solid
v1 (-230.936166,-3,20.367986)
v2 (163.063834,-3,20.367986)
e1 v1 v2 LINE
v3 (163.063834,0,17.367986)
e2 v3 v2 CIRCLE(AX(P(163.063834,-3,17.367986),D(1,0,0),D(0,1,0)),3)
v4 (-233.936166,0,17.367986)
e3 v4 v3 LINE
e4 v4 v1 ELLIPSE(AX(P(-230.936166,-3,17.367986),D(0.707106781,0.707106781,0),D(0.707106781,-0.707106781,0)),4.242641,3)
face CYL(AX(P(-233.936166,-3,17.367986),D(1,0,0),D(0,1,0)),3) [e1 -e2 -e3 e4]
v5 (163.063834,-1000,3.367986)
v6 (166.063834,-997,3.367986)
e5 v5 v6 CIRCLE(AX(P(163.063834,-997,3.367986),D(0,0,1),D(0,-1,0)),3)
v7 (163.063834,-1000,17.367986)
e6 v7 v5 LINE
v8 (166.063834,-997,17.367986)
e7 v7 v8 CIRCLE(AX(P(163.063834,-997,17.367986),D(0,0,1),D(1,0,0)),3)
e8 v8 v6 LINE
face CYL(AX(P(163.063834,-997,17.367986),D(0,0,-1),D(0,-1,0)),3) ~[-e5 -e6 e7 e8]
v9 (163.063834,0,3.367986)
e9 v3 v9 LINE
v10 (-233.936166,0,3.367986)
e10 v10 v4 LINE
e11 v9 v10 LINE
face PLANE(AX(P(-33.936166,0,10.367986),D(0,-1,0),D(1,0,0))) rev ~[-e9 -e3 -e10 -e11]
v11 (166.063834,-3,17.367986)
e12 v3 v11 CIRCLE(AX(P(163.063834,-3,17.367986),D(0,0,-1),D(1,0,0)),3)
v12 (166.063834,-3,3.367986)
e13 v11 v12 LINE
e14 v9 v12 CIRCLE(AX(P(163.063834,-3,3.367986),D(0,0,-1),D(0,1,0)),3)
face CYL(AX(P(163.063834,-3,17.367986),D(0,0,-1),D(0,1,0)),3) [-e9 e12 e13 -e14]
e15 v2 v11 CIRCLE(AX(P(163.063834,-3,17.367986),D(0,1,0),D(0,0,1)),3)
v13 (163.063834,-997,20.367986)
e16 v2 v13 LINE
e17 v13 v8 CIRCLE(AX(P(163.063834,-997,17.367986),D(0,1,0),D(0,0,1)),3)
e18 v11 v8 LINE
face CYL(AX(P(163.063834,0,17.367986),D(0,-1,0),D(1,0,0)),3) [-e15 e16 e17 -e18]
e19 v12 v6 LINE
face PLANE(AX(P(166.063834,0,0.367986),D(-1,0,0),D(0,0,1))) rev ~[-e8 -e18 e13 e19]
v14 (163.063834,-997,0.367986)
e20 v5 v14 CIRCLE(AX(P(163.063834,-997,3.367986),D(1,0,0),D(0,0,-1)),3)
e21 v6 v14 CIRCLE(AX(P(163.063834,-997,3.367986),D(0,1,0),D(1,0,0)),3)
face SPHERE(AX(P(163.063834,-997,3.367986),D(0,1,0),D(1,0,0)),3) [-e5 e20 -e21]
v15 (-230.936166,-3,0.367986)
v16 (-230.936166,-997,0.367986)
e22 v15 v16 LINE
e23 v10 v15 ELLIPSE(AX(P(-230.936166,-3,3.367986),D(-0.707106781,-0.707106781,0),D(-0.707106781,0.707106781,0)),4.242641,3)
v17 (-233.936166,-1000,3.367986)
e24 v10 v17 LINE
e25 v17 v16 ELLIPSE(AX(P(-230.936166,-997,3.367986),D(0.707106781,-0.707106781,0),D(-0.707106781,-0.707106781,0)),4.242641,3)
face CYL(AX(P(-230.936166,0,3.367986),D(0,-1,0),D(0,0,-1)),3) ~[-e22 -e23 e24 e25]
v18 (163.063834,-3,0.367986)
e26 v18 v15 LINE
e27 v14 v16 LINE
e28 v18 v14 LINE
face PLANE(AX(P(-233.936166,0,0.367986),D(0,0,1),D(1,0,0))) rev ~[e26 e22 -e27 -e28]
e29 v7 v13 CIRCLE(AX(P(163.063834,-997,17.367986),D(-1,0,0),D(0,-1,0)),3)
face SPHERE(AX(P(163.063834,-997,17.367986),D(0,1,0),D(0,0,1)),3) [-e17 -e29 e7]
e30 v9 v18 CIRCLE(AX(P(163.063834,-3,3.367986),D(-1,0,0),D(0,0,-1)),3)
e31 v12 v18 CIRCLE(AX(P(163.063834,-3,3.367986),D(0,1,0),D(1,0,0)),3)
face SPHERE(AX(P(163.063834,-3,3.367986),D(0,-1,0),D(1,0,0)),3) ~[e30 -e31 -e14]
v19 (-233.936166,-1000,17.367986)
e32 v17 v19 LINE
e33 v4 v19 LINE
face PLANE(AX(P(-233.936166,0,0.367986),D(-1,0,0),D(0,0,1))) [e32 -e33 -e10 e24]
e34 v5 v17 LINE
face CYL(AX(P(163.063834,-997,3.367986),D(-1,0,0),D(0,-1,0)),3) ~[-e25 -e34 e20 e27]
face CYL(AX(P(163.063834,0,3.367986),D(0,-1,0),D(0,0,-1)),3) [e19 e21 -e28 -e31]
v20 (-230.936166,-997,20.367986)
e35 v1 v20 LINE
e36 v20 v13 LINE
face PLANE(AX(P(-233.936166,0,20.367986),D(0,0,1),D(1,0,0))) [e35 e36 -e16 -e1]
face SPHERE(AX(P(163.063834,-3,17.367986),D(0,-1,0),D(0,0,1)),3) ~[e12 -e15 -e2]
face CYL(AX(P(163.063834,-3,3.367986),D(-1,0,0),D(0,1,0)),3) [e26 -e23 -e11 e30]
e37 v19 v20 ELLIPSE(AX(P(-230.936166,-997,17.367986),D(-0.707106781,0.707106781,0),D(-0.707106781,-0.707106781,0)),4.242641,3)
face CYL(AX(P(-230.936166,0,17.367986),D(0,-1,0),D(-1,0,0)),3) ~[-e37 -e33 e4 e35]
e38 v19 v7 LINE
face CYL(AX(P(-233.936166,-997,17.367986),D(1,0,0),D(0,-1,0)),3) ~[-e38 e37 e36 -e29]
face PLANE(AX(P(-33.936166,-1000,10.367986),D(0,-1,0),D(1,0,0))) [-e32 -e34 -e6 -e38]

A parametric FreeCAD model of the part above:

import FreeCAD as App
import Part
import Sketcher
from FreeCAD import Vector
Q = App.Units.Quantity


def edges_at(feature, points):
    """Names of the edges that pass closest to the given points."""
    edges = feature.Shape.Edges
    near = lambda p: min(range(len(edges)), key=lambda i: edges[i].distToShape(Part.Vertex(*p))[0])
    return sorted({f"Edge{near(p) + 1}" for p in points})

doc = App.newDocument("Part")
body = doc.addObject("PartDesign::Body", "Body")

# Sketch on XZ plane
sketch1 = doc.addObject("Sketcher::SketchObject", "Sketch")
body.addObject(sketch1)
sketch1.AttachmentSupport = (doc.XZ_Plane, [""])
sketch1.MapMode = "FlatFace"
sketch1.addGeometry(Part.LineSegment(Vector(-233.936166, 20.367986, 0), Vector(-233.936166, 0.367986, 0)), False)
sketch1.addGeometry(Part.LineSegment(Vector(-233.936166, 0.367986, 0), Vector(166.063834, 0.367986, 0)), False)
sketch1.addGeometry(Part.LineSegment(Vector(166.063834, 0.367986, 0), Vector(166.063834, 20.367986, 0)), False)
sketch1.addGeometry(Part.LineSegment(Vector(166.063834, 20.367986, 0), Vector(-233.936166, 20.367986, 0)), False)
sketch1.addConstraint(Sketcher.Constraint("Coincident", 0, 2, 1, 1))
sketch1.addConstraint(Sketcher.Constraint("Coincident", 1, 2, 2, 1))
sketch1.addConstraint(Sketcher.Constraint("Coincident", 2, 2, 3, 1))
sketch1.addConstraint(Sketcher.Constraint("Coincident", 3, 2, 0, 1))
sketch1.addConstraint(Sketcher.Constraint("Vertical", 0))
sketch1.addConstraint(Sketcher.Constraint("Horizontal", 1))
sketch1.addConstraint(Sketcher.Constraint("Vertical", 2))
sketch1.addConstraint(Sketcher.Constraint("Horizontal", 3))
sketch1.addConstraint(Sketcher.Constraint("DistanceX", 1, 1, 1, 2, Q("400 mm")))
sketch1.addConstraint(Sketcher.Constraint("DistanceY", 0, 2, 0, 1, Q("20 mm")))
sketch1.addConstraint(Sketcher.Constraint("DistanceX", 0, 2, -1, 1, Q("233.936166 mm")))
sketch1.addConstraint(Sketcher.Constraint("DistanceY", -1, 1, 0, 2, Q("0.367986 mm")))
pad1 = doc.addObject("PartDesign::Pad", "Pad")
body.addObject(pad1)
pad1.Profile = sketch1
pad1.Length = 1000
doc.recompute()

fillet = doc.addObject("PartDesign::Fillet", "Fillet")
body.addObject(fillet)
fillet.Base = (pad1, edges_at(pad1, [(166.064, -500, 20.368), (166.064, -500, 0.368)]))
fillet.Radius = 3
doc.recompute()

fillet2 = doc.addObject("PartDesign::Fillet", "Fillet001")
body.addObject(fillet2)
fillet2.Base = (fillet, edges_at(fillet, [
    (-35.436, 0, 20.368),
    (163.064, -500, 20.368),
    (-233.936, -500, 20.368),
    (-35.436, -1000, 20.368),
    (-35.436, 0, 0.368),
    (163.064, -500, 0.368),
    (-233.936, -500, 0.368),
    (-35.436, -1000, 0.368),
]))
fillet2.Radius = 3

doc.recompute()
